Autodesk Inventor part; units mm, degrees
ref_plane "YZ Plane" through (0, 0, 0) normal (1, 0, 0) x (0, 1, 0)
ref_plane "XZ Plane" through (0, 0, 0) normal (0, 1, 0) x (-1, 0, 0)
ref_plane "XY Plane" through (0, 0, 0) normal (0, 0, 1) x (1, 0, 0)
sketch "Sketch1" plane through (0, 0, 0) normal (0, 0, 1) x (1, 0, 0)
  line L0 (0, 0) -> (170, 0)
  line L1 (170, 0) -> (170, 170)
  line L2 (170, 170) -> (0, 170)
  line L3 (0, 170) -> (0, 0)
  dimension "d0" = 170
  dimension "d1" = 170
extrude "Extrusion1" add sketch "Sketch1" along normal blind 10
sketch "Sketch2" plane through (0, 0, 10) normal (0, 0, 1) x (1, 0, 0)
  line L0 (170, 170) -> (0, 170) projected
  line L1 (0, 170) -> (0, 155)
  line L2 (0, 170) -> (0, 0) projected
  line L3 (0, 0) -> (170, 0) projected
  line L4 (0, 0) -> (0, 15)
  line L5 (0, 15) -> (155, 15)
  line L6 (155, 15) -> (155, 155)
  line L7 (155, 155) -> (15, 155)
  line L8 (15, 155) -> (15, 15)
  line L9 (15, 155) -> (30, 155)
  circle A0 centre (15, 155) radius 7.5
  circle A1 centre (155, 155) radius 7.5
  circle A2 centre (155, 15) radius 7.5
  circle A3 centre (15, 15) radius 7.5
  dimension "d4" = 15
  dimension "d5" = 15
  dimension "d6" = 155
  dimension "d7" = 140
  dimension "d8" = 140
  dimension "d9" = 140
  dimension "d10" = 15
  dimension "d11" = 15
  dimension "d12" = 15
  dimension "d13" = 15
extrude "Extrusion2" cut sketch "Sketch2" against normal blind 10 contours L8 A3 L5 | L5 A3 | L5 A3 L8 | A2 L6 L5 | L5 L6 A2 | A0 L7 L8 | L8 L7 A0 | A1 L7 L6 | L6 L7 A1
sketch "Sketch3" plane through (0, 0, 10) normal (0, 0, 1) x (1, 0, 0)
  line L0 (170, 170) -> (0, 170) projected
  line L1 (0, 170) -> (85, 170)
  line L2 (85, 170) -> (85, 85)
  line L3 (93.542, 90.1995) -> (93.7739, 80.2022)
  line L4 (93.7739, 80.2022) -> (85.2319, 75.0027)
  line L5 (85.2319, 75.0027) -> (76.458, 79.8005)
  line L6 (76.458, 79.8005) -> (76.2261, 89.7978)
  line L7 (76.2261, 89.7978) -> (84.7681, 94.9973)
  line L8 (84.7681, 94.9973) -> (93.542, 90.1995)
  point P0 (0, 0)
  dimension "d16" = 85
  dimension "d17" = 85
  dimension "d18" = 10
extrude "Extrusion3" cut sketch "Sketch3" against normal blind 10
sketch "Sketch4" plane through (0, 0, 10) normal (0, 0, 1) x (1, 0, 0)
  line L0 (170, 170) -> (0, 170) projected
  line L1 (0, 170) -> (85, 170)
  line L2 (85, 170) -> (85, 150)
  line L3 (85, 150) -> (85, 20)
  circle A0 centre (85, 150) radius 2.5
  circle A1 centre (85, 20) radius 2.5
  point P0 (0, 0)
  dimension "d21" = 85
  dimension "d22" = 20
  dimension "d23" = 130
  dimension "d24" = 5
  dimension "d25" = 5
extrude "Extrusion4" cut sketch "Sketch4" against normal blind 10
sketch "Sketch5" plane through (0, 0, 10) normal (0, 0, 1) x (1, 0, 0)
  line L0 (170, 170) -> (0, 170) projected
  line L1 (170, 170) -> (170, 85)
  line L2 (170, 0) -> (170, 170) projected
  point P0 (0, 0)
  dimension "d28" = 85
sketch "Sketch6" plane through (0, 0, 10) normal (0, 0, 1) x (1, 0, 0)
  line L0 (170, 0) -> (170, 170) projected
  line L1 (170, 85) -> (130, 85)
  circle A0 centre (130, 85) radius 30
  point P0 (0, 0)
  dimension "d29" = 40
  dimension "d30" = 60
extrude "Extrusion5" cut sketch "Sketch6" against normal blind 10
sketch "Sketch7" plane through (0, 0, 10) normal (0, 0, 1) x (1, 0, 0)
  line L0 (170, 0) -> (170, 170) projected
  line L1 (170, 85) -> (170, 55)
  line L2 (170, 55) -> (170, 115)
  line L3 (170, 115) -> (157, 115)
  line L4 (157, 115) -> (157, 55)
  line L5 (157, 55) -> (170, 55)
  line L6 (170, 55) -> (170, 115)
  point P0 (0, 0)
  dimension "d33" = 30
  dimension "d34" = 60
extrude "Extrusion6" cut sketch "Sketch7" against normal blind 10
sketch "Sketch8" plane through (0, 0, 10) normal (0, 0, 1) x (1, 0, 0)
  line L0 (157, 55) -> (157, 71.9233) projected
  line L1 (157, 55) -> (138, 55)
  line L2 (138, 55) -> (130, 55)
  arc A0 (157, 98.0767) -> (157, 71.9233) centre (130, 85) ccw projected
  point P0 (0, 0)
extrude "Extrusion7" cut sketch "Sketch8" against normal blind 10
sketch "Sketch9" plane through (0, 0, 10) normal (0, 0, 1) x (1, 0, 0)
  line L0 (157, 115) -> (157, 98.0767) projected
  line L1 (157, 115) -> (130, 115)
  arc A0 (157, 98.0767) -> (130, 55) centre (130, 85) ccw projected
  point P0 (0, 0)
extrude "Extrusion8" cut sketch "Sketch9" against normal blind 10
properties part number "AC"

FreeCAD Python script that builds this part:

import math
import FreeCAD as App
import Part
import Sketcher

V = App.Vector
Q = App.Units.Quantity


def add_polygon(sketch, points):
    """Adds a closed chain of lines whose ends are joined by coincident constraints."""
    first, n = sketch.GeometryCount, len(points)
    for a, b in zip(points, points[1:] + points[:1]):
        sketch.addGeometry(Part.LineSegment(App.Vector(*a, 0), App.Vector(*b, 0)), False)
    for i in range(n):
        sketch.addConstraint(Sketcher.Constraint("Coincident", first + i, 2, first + (i + 1) % n, 1))

doc = App.newDocument("Part")
body = doc.addObject("PartDesign::Body", "Body")

# Sketch on XY plane
sketch1 = body.newObject("Sketcher::SketchObject", "Sketch")
sketch1.AttachmentSupport = (doc.getObject("XY_Plane"), [""])
sketch1.MapMode = "FlatFace"
add_polygon(sketch1, [(0, 170), (0, 0), (170, 0), (170, 170)])  # lines 0-3
sketch1.addConstraint([
    Sketcher.Constraint("Vertical", 0),
    Sketcher.Constraint("Horizontal", 1),
    Sketcher.Constraint("Vertical", 2),
    Sketcher.Constraint("Horizontal", 3),
    Sketcher.Constraint("Coincident", 0, 2, -1, 1),
    Sketcher.Constraint("Equal", 3, 0),
    Sketcher.Constraint("DistanceX", 1, 1, 1, 2, Q("170 mm")),
])
pad1 = body.newObject("PartDesign::Pad", "Pad")
pad1.Profile = sketch1
pad1.Length = 10

# Sketch on XY plane
sketch2 = body.newObject("Sketcher::SketchObject", "Sketch001")
sketch2.AttachmentSupport = (doc.getObject("XY_Plane"), [""])
sketch2.MapMode = "FlatFace"
sketch2.AttachmentOffset = App.Placement(V(0, 0, 10), App.Rotation())
sketch2.addGeometry([
    Part.Circle(V(15, 15, 0), V(0, 0, 1), 8),
    Part.Circle(V(155, 15, 0), V(0, 0, 1), 8),
    Part.Circle(V(15, 155, 0), V(0, 0, 1), 8),
    Part.Circle(V(155, 155, 0), V(0, 0, 1), 8),
], False)
sketch2.addConstraint([
    Sketcher.Constraint("Equal", 0, 1),
    Sketcher.Constraint("Equal", 1, 2),
    Sketcher.Constraint("Equal", 2, 3),
    Sketcher.Constraint("Horizontal", 0, 3, 1, 3),
    Sketcher.Constraint("Horizontal", 2, 3, 3, 3),
    Sketcher.Constraint("Vertical", 0, 3, 2, 3),
    Sketcher.Constraint("Vertical", 1, 3, 3, 3),
    Sketcher.Constraint("Diameter", 0, Q("15 mm")),
    Sketcher.Constraint("DistanceX", -1, 1, 0, 3, Q("15 mm")),
    Sketcher.Constraint("DistanceY", -1, 1, 0, 3, Q("15 mm")),
    Sketcher.Constraint("DistanceX", -1, 1, 1, 3, Q("155 mm")),
    Sketcher.Constraint("DistanceY", -1, 1, 2, 3, Q("155 mm")),
])
pocket1 = body.newObject("PartDesign::Pocket", "Pocket")
pocket1.Profile = sketch2
pocket1.Length = 10

# Sketch on XY plane
sketch3 = body.newObject("Sketcher::SketchObject", "Sketch002")
sketch3.AttachmentSupport = (doc.getObject("XY_Plane"), [""])
sketch3.MapMode = "FlatFace"
sketch3.AttachmentOffset = App.Placement(V(0, 0, 10), App.Rotation())
add_polygon(sketch3, [(94, 80), (94, 90), (85, 95), (76, 90), (76, 80), (85, 75)])  # lines 0-5
sketch3.addConstraint([
    Sketcher.Constraint("Parallel", 0, 3),
    Sketcher.Constraint("Parallel", 1, 4),
    Sketcher.Constraint("Parallel", 2, 5),
    Sketcher.Constraint("Equal", 0, 1),
    Sketcher.Constraint("Equal", 1, 2),
    Sketcher.Constraint("Equal", 2, 3),
    Sketcher.Constraint("Distance", 0, Q("10 mm")),
    Sketcher.Constraint("Angle", 0, Q("91.3288 deg")),
    Sketcher.Constraint("Angle", 1, Q("151.329 deg")),
    Sketcher.Constraint("DistanceX", 3, 2, 1, 2, Q("8.31 mm")),
    Sketcher.Constraint("DistanceX", -1, 1, 0, 2, Q("93.542 mm")),
    Sketcher.Constraint("DistanceY", -1, 1, 0, 2, Q("90.1995 mm")),
])
pocket2 = body.newObject("PartDesign::Pocket", "Pocket001")
pocket2.Profile = sketch3
pocket2.Length = 10

# Sketch on XY plane
sketch4 = body.newObject("Sketcher::SketchObject", "Sketch003")
sketch4.AttachmentSupport = (doc.getObject("XY_Plane"), [""])
sketch4.MapMode = "FlatFace"
sketch4.AttachmentOffset = App.Placement(V(0, 0, 10), App.Rotation())
sketch4.addGeometry([
    Part.Circle(V(85, 150, 0), V(0, 0, 1), 2.5),
    Part.Circle(V(85, 20, 0), V(0, 0, 1), 2.5),
], False)
sketch4.addConstraint([
    Sketcher.Constraint("Equal", 0, 1),
    Sketcher.Constraint("Vertical", 0, 3, 1, 3),
    Sketcher.Constraint("Diameter", 0, Q("5 mm")),
    Sketcher.Constraint("DistanceX", -1, 1, 0, 3, Q("85 mm")),
    Sketcher.Constraint("DistanceY", -1, 1, 1, 3, Q("20 mm")),
    Sketcher.Constraint("DistanceY", 1, 3, 0, 3, Q("130 mm")),
])
pocket3 = body.newObject("PartDesign::Pocket", "Pocket002")
pocket3.Profile = sketch4
pocket3.Length = 10

# Sketch on XY plane
sketch5 = body.newObject("Sketcher::SketchObject", "Sketch004")
sketch5.AttachmentSupport = (doc.getObject("XY_Plane"), [""])
sketch5.MapMode = "FlatFace"
sketch5.AttachmentOffset = App.Placement(V(0, 0, 10), App.Rotation())
sketch5.addGeometry(Part.Circle(V(130, 85, 0), V(0, 0, 1), 30), False)
sketch5.addConstraint([
    Sketcher.Constraint("Diameter", 0, Q("60 mm")),
    Sketcher.Constraint("DistanceX", -1, 1, 0, 3, Q("130 mm")),
    Sketcher.Constraint("DistanceY", -1, 1, 0, 3, Q("85 mm")),
])
pocket4 = body.newObject("PartDesign::Pocket", "Pocket003")
pocket4.Profile = sketch5
pocket4.Length = 10

# Sketch on XY plane
sketch6 = body.newObject("Sketcher::SketchObject", "Sketch005")
sketch6.AttachmentSupport = (doc.getObject("XY_Plane"), [""])
sketch6.MapMode = "FlatFace"
sketch6.AttachmentOffset = App.Placement(V(0, 0, 10), App.Rotation())
add_polygon(sketch6, [(157, 55), (170, 55), (170, 115), (157, 115)])  # lines 0-3
sketch6.addConstraint([
    Sketcher.Constraint("Horizontal", 0),
    Sketcher.Constraint("Vertical", 1),
    Sketcher.Constraint("Horizontal", 2),
    Sketcher.Constraint("Vertical", 3),
    Sketcher.Constraint("DistanceY", 1, 1, 1, 2, Q("60 mm")),
    Sketcher.Constraint("DistanceX", 0, 1, 0, 2, Q("13 mm")),
    Sketcher.Constraint("DistanceX", -1, 1, 0, 2, Q("170 mm")),
    Sketcher.Constraint("DistanceY", -1, 1, 0, 2, Q("55 mm")),
])
pocket5 = body.newObject("PartDesign::Pocket", "Pocket004")
pocket5.Profile = sketch6
pocket5.Length = 10

# Sketch on XY plane
sketch7 = body.newObject("Sketcher::SketchObject", "Sketch006")
sketch7.AttachmentSupport = (doc.getObject("XY_Plane"), [""])
sketch7.MapMode = "FlatFace"
sketch7.AttachmentOffset = App.Placement(V(0, 0, 10), App.Rotation())
sketch7.addGeometry([
    Part.LineSegment(V(130, 55, 0), V(157, 55, 0)),
    Part.LineSegment(V(157, 55, 0), V(157, 72, 0)),
    Part.ArcOfCircle(Part.Circle(V(130, 85, 0), V(0, 0, 1), 30), math.radians(-90), math.radians(-26)),
], False)
sketch7.addConstraint([
    Sketcher.Constraint("Coincident", 0, 2, 1, 1),
    Sketcher.Constraint("Coincident", 1, 2, 2, 2),
    Sketcher.Constraint("Tangent", 2, 1, 0, 1),
    Sketcher.Constraint("Horizontal", 0),
    Sketcher.Constraint("Vertical", 1),
    Sketcher.Constraint("Radius", 2, Q("30 mm")),
    Sketcher.Constraint("DistanceX", 0, 1, 0, 2, Q("27 mm")),
    Sketcher.Constraint("DistanceX", -1, 1, 2, 3, Q("130 mm")),
    Sketcher.Constraint("DistanceY", -1, 1, 2, 3, Q("85 mm")),
])
pocket6 = body.newObject("PartDesign::Pocket", "Pocket005")
pocket6.Profile = sketch7
pocket6.Length = 10

# Sketch on XY plane
sketch8 = body.newObject("Sketcher::SketchObject", "Sketch007")
sketch8.AttachmentSupport = (doc.getObject("XY_Plane"), [""])
sketch8.MapMode = "FlatFace"
sketch8.AttachmentOffset = App.Placement(V(0, 0, 10), App.Rotation())
sketch8.addGeometry([
    Part.LineSegment(V(157, 98, 0), V(157, 115, 0)),
    Part.LineSegment(V(157, 115, 0), V(130, 115, 0)),
    Part.ArcOfCircle(Part.Circle(V(130, 85, 0), V(0, 0, 1), 30), math.radians(26), math.radians(90)),
], False)
sketch8.addConstraint([
    Sketcher.Constraint("Coincident", 0, 2, 1, 1),
    Sketcher.Constraint("Tangent", 1, 2, 2, 2),
    Sketcher.Constraint("Coincident", 2, 1, 0, 1),
    Sketcher.Constraint("Vertical", 0),
    Sketcher.Constraint("Horizontal", 1),
    Sketcher.Constraint("Radius", 2, Q("30 mm")),
    Sketcher.Constraint("DistanceX", 1, 2, 1, 1, Q("27 mm")),
    Sketcher.Constraint("DistanceX", -1, 1, 2, 3, Q("130 mm")),
    Sketcher.Constraint("DistanceY", -1, 1, 2, 3, Q("85 mm")),
])
pocket7 = body.newObject("PartDesign::Pocket", "Pocket006")
pocket7.Profile = sketch8
pocket7.Length = 10

doc.recompute()
